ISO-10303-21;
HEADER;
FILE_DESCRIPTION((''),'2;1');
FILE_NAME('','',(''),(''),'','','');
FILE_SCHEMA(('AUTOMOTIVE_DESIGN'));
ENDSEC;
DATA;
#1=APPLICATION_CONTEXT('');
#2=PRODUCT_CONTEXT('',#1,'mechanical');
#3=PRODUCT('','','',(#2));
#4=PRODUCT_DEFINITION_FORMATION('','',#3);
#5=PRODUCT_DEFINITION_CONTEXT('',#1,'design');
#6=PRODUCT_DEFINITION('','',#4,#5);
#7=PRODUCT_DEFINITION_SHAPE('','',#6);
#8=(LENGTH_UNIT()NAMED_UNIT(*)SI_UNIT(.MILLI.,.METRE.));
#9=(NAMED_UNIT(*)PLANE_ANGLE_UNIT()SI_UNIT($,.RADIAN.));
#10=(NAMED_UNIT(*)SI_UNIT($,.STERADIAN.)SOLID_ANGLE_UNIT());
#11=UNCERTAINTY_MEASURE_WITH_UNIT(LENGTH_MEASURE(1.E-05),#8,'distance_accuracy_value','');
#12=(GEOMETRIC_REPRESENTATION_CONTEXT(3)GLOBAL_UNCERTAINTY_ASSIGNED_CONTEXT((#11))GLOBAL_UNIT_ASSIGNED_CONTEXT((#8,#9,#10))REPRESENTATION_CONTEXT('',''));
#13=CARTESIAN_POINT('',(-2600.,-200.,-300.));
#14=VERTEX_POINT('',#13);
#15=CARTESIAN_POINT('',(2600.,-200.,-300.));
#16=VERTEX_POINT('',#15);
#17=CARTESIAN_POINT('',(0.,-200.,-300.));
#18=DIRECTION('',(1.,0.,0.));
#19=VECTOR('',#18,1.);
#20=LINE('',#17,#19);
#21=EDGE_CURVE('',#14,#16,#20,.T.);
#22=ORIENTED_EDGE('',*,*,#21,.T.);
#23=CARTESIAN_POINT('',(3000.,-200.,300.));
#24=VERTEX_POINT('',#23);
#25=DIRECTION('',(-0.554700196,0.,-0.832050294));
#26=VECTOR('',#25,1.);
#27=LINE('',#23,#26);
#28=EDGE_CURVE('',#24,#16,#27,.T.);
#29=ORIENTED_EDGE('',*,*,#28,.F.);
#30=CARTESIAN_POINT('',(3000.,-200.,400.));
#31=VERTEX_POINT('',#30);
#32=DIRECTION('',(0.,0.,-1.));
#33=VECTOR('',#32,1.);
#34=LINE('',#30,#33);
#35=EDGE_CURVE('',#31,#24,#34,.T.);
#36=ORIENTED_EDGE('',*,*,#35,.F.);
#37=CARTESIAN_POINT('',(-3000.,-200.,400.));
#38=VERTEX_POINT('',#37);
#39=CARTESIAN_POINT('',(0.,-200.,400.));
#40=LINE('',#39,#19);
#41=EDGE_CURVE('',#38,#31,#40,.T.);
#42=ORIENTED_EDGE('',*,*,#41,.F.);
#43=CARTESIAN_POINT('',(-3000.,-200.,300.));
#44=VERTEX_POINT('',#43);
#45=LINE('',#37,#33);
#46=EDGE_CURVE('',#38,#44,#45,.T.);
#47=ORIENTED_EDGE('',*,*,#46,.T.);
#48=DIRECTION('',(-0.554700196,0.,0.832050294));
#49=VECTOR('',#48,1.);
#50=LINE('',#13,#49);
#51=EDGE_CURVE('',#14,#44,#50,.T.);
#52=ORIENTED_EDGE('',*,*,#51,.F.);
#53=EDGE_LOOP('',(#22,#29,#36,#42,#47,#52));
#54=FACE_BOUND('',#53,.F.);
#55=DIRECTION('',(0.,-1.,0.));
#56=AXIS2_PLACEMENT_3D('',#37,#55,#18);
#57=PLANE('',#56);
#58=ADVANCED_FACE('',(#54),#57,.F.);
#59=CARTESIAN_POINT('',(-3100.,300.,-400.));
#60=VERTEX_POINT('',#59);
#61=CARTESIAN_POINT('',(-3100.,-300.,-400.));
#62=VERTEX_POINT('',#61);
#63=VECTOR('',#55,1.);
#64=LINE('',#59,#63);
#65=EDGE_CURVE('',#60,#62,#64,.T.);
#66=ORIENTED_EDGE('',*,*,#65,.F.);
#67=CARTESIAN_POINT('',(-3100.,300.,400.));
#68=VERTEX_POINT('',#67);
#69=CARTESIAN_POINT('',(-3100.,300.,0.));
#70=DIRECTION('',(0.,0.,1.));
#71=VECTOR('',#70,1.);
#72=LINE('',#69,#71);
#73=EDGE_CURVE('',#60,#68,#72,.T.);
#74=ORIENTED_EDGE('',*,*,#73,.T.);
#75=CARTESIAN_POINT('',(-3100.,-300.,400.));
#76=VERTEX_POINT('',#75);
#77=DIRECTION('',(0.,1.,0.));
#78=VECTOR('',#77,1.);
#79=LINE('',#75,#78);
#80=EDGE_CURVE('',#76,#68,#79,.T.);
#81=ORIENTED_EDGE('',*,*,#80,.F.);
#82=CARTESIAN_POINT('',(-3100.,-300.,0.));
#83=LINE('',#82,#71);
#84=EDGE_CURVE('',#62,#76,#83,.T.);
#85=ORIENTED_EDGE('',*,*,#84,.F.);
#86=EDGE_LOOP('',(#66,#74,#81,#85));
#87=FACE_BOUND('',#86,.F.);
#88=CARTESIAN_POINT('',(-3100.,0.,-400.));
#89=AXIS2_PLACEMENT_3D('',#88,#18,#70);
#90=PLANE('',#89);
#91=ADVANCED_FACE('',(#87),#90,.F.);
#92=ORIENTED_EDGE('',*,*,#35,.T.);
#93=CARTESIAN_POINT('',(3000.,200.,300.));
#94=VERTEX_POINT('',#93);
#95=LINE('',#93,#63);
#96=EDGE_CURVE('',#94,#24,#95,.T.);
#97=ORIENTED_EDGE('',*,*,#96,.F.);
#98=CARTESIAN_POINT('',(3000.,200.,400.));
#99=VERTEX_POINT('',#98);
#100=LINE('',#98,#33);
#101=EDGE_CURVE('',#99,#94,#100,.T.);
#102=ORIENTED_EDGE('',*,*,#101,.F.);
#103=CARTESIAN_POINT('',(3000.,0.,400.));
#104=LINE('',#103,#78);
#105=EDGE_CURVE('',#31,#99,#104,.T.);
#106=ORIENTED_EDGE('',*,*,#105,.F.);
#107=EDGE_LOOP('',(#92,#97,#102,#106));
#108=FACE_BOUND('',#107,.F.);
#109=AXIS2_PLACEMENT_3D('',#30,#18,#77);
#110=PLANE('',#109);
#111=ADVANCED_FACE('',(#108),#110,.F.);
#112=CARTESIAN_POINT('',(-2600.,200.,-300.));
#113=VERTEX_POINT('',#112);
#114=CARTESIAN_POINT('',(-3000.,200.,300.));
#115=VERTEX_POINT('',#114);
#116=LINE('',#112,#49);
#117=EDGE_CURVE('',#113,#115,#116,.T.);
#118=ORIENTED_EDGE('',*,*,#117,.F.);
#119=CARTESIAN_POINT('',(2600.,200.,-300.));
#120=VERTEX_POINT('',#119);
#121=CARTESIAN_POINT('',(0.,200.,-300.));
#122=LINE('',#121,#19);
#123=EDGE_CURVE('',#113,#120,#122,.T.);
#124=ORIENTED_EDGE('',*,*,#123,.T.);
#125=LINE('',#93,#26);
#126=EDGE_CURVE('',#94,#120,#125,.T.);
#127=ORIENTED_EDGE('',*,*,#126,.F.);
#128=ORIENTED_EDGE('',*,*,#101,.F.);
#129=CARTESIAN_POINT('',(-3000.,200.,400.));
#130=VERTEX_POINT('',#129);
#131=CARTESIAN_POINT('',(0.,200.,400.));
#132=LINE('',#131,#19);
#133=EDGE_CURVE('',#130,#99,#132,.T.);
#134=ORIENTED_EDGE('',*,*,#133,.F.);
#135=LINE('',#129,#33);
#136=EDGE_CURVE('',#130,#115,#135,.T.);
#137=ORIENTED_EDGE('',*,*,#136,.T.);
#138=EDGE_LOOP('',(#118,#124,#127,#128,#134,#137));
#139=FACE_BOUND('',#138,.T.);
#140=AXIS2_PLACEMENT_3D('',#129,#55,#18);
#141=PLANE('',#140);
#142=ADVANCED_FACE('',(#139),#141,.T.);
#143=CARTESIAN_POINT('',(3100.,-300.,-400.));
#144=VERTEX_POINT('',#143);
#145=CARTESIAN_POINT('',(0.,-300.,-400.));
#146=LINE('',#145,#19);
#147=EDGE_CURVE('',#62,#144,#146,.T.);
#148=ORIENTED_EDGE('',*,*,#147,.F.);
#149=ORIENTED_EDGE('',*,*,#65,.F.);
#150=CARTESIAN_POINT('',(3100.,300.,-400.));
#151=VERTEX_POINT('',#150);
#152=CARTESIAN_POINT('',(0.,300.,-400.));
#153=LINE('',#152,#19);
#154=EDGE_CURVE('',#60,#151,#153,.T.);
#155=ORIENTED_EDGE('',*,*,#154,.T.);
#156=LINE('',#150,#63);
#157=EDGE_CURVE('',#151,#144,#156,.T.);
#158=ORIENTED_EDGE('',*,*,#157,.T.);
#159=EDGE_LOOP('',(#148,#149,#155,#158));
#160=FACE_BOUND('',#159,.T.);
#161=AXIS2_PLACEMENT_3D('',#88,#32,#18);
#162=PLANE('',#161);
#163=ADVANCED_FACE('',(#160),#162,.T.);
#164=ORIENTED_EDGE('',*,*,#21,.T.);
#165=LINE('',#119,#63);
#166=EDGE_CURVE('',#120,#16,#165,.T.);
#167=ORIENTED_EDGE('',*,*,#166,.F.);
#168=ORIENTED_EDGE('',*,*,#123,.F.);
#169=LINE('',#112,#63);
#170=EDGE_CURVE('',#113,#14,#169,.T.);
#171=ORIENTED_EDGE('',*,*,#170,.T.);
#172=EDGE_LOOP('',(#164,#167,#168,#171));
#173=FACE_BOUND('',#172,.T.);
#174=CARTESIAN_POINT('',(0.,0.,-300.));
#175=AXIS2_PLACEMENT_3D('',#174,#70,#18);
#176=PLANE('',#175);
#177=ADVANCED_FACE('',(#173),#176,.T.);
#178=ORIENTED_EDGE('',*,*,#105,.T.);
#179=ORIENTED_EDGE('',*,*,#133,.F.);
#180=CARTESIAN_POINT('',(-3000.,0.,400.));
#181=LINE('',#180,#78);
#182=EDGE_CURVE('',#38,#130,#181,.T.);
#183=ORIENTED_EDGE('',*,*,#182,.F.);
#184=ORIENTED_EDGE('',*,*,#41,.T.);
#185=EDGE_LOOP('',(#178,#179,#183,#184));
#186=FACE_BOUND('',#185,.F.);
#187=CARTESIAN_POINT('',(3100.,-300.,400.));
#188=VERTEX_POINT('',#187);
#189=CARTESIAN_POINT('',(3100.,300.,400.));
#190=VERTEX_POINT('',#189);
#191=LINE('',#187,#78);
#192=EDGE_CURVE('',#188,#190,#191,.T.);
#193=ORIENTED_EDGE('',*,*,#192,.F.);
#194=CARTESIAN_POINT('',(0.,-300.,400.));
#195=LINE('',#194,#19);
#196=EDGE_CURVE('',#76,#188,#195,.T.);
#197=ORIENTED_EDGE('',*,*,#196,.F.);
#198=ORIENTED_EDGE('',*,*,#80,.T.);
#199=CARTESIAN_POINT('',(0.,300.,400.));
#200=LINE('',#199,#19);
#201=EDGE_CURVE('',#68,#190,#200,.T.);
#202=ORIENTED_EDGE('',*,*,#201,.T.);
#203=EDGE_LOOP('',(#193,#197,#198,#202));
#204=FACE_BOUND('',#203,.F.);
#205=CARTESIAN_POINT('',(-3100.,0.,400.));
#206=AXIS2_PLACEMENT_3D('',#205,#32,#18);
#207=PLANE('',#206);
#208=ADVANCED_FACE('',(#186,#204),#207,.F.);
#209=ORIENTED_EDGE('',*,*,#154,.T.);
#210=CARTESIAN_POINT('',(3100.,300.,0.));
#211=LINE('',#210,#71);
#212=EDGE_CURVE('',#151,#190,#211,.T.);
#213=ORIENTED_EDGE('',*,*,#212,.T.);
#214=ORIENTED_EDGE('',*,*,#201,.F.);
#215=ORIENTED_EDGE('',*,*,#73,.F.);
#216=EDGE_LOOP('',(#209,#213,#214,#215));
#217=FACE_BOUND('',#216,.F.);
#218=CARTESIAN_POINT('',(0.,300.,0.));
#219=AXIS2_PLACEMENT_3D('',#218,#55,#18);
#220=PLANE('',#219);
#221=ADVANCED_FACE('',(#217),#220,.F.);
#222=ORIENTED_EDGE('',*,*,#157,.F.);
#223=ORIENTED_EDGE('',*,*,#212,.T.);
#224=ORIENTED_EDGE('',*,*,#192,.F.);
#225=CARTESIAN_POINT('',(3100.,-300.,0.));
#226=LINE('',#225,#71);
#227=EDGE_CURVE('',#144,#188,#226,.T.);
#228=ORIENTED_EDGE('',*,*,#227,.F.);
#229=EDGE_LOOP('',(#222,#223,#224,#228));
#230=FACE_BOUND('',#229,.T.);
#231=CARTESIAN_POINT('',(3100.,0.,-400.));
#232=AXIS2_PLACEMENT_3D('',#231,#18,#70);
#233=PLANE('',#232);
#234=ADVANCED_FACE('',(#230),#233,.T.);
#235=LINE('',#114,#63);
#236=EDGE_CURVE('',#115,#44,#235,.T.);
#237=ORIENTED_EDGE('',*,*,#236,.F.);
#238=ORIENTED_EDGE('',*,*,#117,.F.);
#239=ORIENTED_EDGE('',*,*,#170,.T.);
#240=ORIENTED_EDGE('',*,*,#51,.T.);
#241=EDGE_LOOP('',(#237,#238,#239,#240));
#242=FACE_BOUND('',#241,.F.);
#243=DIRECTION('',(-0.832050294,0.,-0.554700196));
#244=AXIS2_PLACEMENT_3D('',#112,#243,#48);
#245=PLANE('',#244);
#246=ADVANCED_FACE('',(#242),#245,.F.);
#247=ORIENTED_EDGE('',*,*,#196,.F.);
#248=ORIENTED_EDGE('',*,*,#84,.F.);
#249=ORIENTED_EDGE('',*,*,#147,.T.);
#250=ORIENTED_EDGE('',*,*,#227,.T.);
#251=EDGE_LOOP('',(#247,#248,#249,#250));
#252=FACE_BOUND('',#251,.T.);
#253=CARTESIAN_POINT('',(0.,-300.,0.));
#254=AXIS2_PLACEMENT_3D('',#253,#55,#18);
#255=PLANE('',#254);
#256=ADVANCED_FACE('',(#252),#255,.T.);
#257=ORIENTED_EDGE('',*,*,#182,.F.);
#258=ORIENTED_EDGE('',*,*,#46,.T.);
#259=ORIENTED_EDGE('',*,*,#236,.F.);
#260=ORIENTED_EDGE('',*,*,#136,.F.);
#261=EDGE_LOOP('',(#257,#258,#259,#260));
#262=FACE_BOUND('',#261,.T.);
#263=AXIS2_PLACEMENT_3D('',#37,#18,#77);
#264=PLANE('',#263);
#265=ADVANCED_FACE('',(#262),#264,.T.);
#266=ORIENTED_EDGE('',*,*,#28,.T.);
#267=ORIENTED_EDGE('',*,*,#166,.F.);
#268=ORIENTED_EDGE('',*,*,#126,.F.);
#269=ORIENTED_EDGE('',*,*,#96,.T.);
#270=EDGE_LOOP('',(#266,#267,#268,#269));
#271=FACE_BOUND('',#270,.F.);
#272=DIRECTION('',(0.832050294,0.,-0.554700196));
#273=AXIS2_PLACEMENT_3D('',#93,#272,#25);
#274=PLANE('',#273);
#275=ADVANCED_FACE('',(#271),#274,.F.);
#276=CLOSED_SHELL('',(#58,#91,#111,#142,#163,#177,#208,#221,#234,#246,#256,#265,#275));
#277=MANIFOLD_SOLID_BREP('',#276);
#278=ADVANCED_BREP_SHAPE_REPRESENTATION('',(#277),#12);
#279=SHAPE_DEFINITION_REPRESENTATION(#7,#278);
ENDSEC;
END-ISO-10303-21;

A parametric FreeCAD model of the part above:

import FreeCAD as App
import Part
import Sketcher
from FreeCAD import Vector
Q = App.Units.Quantity

doc = App.newDocument("Part")
body = doc.addObject("PartDesign::Body", "Body")

sketch1 = body.newObject("Sketcher::SketchObject", "Sketch")
sketch1.AttachmentSupport = (doc.getObject("XZ_Plane"), [""])
sketch1.MapMode = "FlatFace"
sketch1.addGeometry(Part.LineSegment(Vector(-3100, 400, 0), Vector(-3100, -400, 0)), False)
sketch1.addGeometry(Part.LineSegment(Vector(-3100, -400, 0), Vector(3100, -400, 0)), False)
sketch1.addGeometry(Part.LineSegment(Vector(3100, -400, 0), Vector(3100, 400, 0)), False)
sketch1.addGeometry(Part.LineSegment(Vector(3100, 400, 0), Vector(-3100, 400, 0)), False)
sketch1.addConstraint(Sketcher.Constraint("Coincident", 0, 2, 1, 1))
sketch1.addConstraint(Sketcher.Constraint("Coincident", 1, 2, 2, 1))
sketch1.addConstraint(Sketcher.Constraint("Coincident", 2, 2, 3, 1))
sketch1.addConstraint(Sketcher.Constraint("Coincident", 3, 2, 0, 1))
sketch1.addConstraint(Sketcher.Constraint("Vertical", 0))
sketch1.addConstraint(Sketcher.Constraint("Horizontal", 1))
sketch1.addConstraint(Sketcher.Constraint("Vertical", 2))
sketch1.addConstraint(Sketcher.Constraint("Horizontal", 3))
sketch1.addConstraint(Sketcher.Constraint("Symmetric", 0, 2, 2, 2, -1, 1))
sketch1.addConstraint(Sketcher.Constraint("DistanceX", 1, 1, 1, 2, Q("6200 mm")))
sketch1.addConstraint(Sketcher.Constraint("DistanceY", 0, 2, 0, 1, Q("800 mm")))
pad1 = body.newObject("PartDesign::Pad", "Pad")
pad1.Profile = sketch1
pad1.Length = 600
pad1.Midplane = True

sketch2 = body.newObject("Sketcher::SketchObject", "Sketch001")
sketch2.AttachmentSupport = (doc.getObject("XY_Plane"), [""])
sketch2.MapMode = "FlatFace"
sketch2.AttachmentOffset = App.Placement(Vector(0, 0, 400), App.Rotation())
sketch2.addGeometry(Part.LineSegment(Vector(-3000, 200, 0), Vector(-3000, -200, 0)), False)
sketch2.addGeometry(Part.LineSegment(Vector(-3000, -200, 0), Vector(3000, -200, 0)), False)
sketch2.addGeometry(Part.LineSegment(Vector(3000, -200, 0), Vector(3000, 200, 0)), False)
sketch2.addGeometry(Part.LineSegment(Vector(3000, 200, 0), Vector(-3000, 200, 0)), False)
sketch2.addConstraint(Sketcher.Constraint("Coincident", 0, 2, 1, 1))
sketch2.addConstraint(Sketcher.Constraint("Coincident", 1, 2, 2, 1))
sketch2.addConstraint(Sketcher.Constraint("Coincident", 2, 2, 3, 1))
sketch2.addConstraint(Sketcher.Constraint("Coincident", 3, 2, 0, 1))
sketch2.addConstraint(Sketcher.Constraint("Vertical", 0))
sketch2.addConstraint(Sketcher.Constraint("Horizontal", 1))
sketch2.addConstraint(Sketcher.Constraint("Vertical", 2))
sketch2.addConstraint(Sketcher.Constraint("Horizontal", 3))
sketch2.addConstraint(Sketcher.Constraint("Symmetric", 0, 2, 2, 2, -1, 1))
sketch2.addConstraint(Sketcher.Constraint("DistanceX", 1, 1, 1, 2, Q("6000 mm")))
sketch2.addConstraint(Sketcher.Constraint("DistanceY", 0, 2, 0, 1, Q("400 mm")))
pocket1 = body.newObject("PartDesign::Pocket", "Pocket")
pocket1.Profile = sketch2
pocket1.Length = 700

sketch3 = body.newObject("Sketcher::SketchObject", "Sketch002")
sketch3.AttachmentSupport = (doc.getObject("XZ_Plane"), [""])
sketch3.MapMode = "FlatFace"
sketch3.AttachmentOffset = App.Placement(Vector(0, 0, -200), App.Rotation())
sketch3.addGeometry(Part.LineSegment(Vector(-2600, -300, 0), Vector(-3000, 300, 0)), False)
sketch3.addGeometry(Part.LineSegment(Vector(-3000, 300, 0), Vector(-3000, -300, 0)), False)
sketch3.addGeometry(Part.LineSegment(Vector(-3000, -300, 0), Vector(-2600, -300, 0)), False)
sketch3.addConstraint(Sketcher.Constraint("Coincident", 0, 2, 1, 1))
sketch3.addConstraint(Sketcher.Constraint("Coincident", 1, 2, 2, 1))
sketch3.addConstraint(Sketcher.Constraint("Coincident", 2, 2, 0, 1))
sketch3.addConstraint(Sketcher.Constraint("Vertical", 1))
sketch3.addConstraint(Sketcher.Constraint("Horizontal", 2))
sketch3.addConstraint(Sketcher.Constraint("DistanceX", 2, 1, 2, 2, Q("400 mm")))
sketch3.addConstraint(Sketcher.Constraint("DistanceY", 1, 2, 1, 1, Q("600 mm")))
sketch3.addConstraint(Sketcher.Constraint("DistanceX", 0, 2, -1, 1, Q("3000 mm")))
sketch3.addConstraint(Sketcher.Constraint("DistanceY", -1, 1, 0, 2, Q("300 mm")))
pad2 = body.newObject("PartDesign::Pad", "Pad001")
pad2.Profile = sketch3
pad2.Type = "UpToLast"

sketch4 = body.newObject("Sketcher::SketchObject", "Sketch003")
sketch4.AttachmentSupport = (doc.getObject("XZ_Plane"), [""])
sketch4.MapMode = "FlatFace"
sketch4.AttachmentOffset = App.Placement(Vector(0, 0, -200), App.Rotation())
sketch4.addGeometry(Part.LineSegment(Vector(3000, 300, 0), Vector(2600, -300, 0)), False)
sketch4.addGeometry(Part.LineSegment(Vector(2600, -300, 0), Vector(3000, -300, 0)), False)
sketch4.addGeometry(Part.LineSegment(Vector(3000, -300, 0), Vector(3000, 300, 0)), False)
sketch4.addConstraint(Sketcher.Constraint("Coincident", 0, 2, 1, 1))
sketch4.addConstraint(Sketcher.Constraint("Coincident", 1, 2, 2, 1))
sketch4.addConstraint(Sketcher.Constraint("Coincident", 2, 2, 0, 1))
sketch4.addConstraint(Sketcher.Constraint("Horizontal", 1))
sketch4.addConstraint(Sketcher.Constraint("Vertical", 2))
sketch4.addConstraint(Sketcher.Constraint("DistanceX", 1, 1, 1, 2, Q("400 mm")))
sketch4.addConstraint(Sketcher.Constraint("DistanceY", 2, 1, 2, 2, Q("600 mm")))
sketch4.addConstraint(Sketcher.Constraint("DistanceX", -1, 1, 0, 2, Q("2600 mm")))
sketch4.addConstraint(Sketcher.Constraint("DistanceY", 0, 2, -1, 1, Q("300 mm")))
pad3 = body.newObject("PartDesign::Pad", "Pad002")
pad3.Profile = sketch4
pad3.Type = "UpToLast"

doc.recompute()
